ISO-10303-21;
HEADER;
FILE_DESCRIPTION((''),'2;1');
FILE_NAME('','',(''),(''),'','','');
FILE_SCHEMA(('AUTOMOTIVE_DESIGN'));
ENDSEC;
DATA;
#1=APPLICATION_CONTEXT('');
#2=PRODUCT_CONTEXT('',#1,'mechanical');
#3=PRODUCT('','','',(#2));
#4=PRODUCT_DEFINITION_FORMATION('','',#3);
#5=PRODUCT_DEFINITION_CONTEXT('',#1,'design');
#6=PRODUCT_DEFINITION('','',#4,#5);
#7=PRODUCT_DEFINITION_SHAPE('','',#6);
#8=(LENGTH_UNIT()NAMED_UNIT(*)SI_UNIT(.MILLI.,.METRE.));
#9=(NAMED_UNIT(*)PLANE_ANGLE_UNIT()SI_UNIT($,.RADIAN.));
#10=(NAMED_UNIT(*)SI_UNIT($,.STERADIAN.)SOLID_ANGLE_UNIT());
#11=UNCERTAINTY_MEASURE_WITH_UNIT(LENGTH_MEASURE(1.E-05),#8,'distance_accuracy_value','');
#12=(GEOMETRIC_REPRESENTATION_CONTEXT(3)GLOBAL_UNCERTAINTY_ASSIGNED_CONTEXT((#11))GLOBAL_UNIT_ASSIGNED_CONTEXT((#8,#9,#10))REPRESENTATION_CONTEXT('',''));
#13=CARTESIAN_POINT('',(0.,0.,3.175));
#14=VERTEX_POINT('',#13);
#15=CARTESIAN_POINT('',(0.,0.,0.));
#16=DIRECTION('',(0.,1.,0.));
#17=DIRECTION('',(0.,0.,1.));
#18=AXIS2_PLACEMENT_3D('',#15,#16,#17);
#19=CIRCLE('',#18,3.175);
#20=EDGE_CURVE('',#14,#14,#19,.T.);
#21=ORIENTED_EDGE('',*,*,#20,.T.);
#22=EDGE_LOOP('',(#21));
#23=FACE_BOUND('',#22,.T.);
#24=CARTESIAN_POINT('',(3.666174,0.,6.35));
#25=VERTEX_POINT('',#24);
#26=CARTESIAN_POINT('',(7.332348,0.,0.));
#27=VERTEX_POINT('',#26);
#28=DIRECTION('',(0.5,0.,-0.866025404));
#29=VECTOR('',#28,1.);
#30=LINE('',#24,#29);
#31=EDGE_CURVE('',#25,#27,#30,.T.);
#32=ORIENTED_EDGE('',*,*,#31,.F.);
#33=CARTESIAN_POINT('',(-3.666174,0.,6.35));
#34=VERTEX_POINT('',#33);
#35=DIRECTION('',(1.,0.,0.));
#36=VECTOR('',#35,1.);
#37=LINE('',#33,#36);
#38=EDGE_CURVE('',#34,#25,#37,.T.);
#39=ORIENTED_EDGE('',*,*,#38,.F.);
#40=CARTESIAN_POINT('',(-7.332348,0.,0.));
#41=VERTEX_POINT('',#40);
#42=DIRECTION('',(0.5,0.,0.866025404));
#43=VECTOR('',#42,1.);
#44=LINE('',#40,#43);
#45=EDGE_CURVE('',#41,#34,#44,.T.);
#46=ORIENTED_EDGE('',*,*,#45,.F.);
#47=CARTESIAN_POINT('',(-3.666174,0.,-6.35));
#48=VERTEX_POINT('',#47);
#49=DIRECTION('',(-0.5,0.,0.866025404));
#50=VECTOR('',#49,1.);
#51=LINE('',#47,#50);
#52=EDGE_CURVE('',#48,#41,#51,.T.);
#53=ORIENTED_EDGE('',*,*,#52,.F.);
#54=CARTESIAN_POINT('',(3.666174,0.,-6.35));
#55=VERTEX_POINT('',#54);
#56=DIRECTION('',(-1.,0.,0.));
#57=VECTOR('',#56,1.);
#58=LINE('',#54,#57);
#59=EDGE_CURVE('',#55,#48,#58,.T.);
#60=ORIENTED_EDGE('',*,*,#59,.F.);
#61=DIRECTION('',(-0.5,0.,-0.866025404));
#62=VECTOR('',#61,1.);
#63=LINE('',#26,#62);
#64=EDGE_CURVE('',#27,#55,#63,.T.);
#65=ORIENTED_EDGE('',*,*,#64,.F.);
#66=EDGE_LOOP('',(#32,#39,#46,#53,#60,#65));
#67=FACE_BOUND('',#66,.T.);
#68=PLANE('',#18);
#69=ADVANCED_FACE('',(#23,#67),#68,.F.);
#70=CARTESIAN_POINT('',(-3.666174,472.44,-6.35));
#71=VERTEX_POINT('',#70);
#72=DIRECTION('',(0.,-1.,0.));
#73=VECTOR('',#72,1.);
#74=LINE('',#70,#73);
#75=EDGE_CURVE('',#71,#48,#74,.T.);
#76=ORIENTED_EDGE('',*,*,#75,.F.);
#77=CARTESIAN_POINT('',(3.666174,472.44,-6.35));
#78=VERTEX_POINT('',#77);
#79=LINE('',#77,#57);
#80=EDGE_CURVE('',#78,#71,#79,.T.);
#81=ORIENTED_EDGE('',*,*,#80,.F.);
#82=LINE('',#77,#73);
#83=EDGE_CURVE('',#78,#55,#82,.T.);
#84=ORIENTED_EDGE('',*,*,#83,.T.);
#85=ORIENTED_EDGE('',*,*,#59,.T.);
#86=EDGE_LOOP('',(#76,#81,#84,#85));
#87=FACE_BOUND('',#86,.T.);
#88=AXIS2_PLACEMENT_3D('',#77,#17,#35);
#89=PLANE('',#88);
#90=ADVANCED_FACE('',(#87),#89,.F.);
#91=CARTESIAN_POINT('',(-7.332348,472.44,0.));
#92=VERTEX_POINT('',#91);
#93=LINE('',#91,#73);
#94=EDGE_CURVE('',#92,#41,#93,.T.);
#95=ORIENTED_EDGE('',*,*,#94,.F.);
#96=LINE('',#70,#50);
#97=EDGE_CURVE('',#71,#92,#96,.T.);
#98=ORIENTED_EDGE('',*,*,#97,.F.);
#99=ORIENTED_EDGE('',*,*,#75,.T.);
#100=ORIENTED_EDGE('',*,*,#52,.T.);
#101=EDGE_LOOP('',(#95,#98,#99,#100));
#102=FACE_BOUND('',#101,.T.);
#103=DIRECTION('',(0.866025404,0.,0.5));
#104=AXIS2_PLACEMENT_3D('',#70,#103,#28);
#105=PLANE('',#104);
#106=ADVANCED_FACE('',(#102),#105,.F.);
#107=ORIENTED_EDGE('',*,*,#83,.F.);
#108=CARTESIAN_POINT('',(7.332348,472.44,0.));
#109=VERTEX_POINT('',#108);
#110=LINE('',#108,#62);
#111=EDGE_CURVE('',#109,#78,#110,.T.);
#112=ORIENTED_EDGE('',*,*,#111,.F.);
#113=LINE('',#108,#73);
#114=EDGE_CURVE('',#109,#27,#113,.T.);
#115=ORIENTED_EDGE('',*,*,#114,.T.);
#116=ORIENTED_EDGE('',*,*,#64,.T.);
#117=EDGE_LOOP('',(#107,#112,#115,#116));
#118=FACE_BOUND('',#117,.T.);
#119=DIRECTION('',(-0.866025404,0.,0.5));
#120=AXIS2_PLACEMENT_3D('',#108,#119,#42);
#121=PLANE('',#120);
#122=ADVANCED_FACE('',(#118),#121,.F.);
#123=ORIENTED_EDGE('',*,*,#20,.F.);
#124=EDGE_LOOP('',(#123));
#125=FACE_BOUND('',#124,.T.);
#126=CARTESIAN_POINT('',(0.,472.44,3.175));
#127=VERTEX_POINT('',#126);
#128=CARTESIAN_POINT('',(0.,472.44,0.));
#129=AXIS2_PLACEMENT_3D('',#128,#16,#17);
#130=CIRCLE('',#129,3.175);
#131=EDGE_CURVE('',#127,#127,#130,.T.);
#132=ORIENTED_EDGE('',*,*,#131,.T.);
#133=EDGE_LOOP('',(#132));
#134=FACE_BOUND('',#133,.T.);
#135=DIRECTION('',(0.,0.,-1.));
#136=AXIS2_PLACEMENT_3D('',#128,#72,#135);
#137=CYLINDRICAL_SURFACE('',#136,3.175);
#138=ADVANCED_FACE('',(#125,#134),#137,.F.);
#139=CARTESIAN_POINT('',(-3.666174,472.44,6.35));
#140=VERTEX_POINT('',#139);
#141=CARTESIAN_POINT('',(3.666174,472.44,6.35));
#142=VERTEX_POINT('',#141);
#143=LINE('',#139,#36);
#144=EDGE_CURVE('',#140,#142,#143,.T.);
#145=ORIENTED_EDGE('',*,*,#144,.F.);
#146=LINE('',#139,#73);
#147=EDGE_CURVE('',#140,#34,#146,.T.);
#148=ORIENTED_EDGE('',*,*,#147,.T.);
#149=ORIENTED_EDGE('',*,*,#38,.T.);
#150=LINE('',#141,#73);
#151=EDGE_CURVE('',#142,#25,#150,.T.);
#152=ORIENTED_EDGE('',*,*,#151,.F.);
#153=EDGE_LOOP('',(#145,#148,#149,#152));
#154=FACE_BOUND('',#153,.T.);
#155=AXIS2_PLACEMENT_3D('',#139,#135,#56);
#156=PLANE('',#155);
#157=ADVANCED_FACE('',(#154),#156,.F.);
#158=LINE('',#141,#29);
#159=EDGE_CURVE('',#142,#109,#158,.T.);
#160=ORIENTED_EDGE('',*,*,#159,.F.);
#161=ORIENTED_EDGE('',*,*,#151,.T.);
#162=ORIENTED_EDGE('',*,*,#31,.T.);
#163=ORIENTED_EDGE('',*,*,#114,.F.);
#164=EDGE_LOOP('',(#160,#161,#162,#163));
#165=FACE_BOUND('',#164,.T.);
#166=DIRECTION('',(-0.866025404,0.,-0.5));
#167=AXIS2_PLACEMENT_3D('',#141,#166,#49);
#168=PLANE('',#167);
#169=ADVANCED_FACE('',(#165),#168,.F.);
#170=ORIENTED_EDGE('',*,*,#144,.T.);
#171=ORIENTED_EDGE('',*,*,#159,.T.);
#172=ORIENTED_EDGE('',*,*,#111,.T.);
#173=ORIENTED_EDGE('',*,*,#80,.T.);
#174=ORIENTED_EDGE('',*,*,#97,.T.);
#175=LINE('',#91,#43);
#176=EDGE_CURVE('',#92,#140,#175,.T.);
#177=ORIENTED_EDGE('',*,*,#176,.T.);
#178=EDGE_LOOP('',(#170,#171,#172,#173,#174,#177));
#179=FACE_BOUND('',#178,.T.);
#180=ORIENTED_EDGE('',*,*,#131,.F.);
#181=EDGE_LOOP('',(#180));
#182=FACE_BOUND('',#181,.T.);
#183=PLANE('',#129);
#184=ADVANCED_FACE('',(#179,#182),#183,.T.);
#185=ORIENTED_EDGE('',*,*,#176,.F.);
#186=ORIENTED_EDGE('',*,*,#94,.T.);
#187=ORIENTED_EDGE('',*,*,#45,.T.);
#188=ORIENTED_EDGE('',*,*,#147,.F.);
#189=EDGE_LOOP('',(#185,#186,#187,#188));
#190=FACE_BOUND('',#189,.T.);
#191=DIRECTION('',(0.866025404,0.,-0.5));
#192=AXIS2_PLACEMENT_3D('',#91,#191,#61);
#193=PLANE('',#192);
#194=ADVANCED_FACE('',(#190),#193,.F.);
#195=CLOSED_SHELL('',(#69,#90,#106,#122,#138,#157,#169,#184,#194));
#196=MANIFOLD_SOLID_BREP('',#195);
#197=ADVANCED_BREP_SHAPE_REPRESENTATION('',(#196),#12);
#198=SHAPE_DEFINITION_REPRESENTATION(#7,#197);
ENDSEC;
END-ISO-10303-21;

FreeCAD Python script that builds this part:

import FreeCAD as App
import Part
import Sketcher
Q = App.Units.Quantity


def add_polygon(sketch, points):
    """Adds a closed chain of lines whose ends are joined by coincident constraints."""
    first, n = sketch.GeometryCount, len(points)
    for a, b in zip(points, points[1:] + points[:1]):
        sketch.addGeometry(Part.LineSegment(App.Vector(*a, 0), App.Vector(*b, 0)), False)
    for i in range(n):
        sketch.addConstraint(Sketcher.Constraint("Coincident", first + i, 2, first + (i + 1) % n, 1))

doc = App.newDocument("Part")
params = doc.addObject("Spreadsheet::Sheet", "Params")
for row, (alias, value) in enumerate([
    ("sketch1_diameter", "0.25 in"),
    ("pad1_length", "18.6 in"),
], start=1):
    params.set(f"A{row}", alias)
    params.set(f"B{row}", "=" + value)
    params.setAlias(f"B{row}", alias)

body = doc.addObject("PartDesign::Body", "Body")

sketch1 = body.newObject("Sketcher::SketchObject", "Sketch")
sketch1.AttachmentSupport = (doc.getObject("XZ_Plane"), [""])
sketch1.MapMode = "FlatFace"
add_polygon(sketch1, [(3.666174, 6.35), (7.332348, 0), (3.666174, -6.35), (-3.666174, -6.35), (-7.332348, 0), (-3.666174, 6.35)])
sketch1.addGeometry(Part.Circle(App.Vector(0, 0, 0), App.Vector(0, 0, 1), 3.175), False)
sketch1.addConstraint([
    Sketcher.Constraint("Horizontal", 2),
    Sketcher.Constraint("Horizontal", 5),
    Sketcher.Constraint("Coincident", 6, 3, -1, 1),
    Sketcher.Constraint("Symmetric", 0, 2, 3, 2, -1, 1),
    Sketcher.Constraint("Symmetric", 1, 2, 4, 2, -1, 1),
    Sketcher.Constraint("PointOnObject", 0, 2, -1),
    Sketcher.Constraint("Parallel", 0, 3),
    Sketcher.Constraint("Vertical", 2, 2, 4, 2),
    Sketcher.Constraint("Diameter", 6, Q("0.25 in")),
    Sketcher.Constraint("Angle", 0, Q("-60 deg")),
    Sketcher.Constraint("DistanceY", 2, 2, 4, 2, Q("0.5 in")),
    Sketcher.Constraint("DistanceX", 2, 2, 2, 1, Q("7.332348 mm")),
])
sketch1.setExpression("Constraints[14]", "Params.sketch1_diameter")
pad1 = body.newObject("PartDesign::Pad", "Pad")
pad1.Profile = sketch1
pad1.setExpression("Length", "Params.pad1_length")
pad1.Reversed = True

doc.recompute()
